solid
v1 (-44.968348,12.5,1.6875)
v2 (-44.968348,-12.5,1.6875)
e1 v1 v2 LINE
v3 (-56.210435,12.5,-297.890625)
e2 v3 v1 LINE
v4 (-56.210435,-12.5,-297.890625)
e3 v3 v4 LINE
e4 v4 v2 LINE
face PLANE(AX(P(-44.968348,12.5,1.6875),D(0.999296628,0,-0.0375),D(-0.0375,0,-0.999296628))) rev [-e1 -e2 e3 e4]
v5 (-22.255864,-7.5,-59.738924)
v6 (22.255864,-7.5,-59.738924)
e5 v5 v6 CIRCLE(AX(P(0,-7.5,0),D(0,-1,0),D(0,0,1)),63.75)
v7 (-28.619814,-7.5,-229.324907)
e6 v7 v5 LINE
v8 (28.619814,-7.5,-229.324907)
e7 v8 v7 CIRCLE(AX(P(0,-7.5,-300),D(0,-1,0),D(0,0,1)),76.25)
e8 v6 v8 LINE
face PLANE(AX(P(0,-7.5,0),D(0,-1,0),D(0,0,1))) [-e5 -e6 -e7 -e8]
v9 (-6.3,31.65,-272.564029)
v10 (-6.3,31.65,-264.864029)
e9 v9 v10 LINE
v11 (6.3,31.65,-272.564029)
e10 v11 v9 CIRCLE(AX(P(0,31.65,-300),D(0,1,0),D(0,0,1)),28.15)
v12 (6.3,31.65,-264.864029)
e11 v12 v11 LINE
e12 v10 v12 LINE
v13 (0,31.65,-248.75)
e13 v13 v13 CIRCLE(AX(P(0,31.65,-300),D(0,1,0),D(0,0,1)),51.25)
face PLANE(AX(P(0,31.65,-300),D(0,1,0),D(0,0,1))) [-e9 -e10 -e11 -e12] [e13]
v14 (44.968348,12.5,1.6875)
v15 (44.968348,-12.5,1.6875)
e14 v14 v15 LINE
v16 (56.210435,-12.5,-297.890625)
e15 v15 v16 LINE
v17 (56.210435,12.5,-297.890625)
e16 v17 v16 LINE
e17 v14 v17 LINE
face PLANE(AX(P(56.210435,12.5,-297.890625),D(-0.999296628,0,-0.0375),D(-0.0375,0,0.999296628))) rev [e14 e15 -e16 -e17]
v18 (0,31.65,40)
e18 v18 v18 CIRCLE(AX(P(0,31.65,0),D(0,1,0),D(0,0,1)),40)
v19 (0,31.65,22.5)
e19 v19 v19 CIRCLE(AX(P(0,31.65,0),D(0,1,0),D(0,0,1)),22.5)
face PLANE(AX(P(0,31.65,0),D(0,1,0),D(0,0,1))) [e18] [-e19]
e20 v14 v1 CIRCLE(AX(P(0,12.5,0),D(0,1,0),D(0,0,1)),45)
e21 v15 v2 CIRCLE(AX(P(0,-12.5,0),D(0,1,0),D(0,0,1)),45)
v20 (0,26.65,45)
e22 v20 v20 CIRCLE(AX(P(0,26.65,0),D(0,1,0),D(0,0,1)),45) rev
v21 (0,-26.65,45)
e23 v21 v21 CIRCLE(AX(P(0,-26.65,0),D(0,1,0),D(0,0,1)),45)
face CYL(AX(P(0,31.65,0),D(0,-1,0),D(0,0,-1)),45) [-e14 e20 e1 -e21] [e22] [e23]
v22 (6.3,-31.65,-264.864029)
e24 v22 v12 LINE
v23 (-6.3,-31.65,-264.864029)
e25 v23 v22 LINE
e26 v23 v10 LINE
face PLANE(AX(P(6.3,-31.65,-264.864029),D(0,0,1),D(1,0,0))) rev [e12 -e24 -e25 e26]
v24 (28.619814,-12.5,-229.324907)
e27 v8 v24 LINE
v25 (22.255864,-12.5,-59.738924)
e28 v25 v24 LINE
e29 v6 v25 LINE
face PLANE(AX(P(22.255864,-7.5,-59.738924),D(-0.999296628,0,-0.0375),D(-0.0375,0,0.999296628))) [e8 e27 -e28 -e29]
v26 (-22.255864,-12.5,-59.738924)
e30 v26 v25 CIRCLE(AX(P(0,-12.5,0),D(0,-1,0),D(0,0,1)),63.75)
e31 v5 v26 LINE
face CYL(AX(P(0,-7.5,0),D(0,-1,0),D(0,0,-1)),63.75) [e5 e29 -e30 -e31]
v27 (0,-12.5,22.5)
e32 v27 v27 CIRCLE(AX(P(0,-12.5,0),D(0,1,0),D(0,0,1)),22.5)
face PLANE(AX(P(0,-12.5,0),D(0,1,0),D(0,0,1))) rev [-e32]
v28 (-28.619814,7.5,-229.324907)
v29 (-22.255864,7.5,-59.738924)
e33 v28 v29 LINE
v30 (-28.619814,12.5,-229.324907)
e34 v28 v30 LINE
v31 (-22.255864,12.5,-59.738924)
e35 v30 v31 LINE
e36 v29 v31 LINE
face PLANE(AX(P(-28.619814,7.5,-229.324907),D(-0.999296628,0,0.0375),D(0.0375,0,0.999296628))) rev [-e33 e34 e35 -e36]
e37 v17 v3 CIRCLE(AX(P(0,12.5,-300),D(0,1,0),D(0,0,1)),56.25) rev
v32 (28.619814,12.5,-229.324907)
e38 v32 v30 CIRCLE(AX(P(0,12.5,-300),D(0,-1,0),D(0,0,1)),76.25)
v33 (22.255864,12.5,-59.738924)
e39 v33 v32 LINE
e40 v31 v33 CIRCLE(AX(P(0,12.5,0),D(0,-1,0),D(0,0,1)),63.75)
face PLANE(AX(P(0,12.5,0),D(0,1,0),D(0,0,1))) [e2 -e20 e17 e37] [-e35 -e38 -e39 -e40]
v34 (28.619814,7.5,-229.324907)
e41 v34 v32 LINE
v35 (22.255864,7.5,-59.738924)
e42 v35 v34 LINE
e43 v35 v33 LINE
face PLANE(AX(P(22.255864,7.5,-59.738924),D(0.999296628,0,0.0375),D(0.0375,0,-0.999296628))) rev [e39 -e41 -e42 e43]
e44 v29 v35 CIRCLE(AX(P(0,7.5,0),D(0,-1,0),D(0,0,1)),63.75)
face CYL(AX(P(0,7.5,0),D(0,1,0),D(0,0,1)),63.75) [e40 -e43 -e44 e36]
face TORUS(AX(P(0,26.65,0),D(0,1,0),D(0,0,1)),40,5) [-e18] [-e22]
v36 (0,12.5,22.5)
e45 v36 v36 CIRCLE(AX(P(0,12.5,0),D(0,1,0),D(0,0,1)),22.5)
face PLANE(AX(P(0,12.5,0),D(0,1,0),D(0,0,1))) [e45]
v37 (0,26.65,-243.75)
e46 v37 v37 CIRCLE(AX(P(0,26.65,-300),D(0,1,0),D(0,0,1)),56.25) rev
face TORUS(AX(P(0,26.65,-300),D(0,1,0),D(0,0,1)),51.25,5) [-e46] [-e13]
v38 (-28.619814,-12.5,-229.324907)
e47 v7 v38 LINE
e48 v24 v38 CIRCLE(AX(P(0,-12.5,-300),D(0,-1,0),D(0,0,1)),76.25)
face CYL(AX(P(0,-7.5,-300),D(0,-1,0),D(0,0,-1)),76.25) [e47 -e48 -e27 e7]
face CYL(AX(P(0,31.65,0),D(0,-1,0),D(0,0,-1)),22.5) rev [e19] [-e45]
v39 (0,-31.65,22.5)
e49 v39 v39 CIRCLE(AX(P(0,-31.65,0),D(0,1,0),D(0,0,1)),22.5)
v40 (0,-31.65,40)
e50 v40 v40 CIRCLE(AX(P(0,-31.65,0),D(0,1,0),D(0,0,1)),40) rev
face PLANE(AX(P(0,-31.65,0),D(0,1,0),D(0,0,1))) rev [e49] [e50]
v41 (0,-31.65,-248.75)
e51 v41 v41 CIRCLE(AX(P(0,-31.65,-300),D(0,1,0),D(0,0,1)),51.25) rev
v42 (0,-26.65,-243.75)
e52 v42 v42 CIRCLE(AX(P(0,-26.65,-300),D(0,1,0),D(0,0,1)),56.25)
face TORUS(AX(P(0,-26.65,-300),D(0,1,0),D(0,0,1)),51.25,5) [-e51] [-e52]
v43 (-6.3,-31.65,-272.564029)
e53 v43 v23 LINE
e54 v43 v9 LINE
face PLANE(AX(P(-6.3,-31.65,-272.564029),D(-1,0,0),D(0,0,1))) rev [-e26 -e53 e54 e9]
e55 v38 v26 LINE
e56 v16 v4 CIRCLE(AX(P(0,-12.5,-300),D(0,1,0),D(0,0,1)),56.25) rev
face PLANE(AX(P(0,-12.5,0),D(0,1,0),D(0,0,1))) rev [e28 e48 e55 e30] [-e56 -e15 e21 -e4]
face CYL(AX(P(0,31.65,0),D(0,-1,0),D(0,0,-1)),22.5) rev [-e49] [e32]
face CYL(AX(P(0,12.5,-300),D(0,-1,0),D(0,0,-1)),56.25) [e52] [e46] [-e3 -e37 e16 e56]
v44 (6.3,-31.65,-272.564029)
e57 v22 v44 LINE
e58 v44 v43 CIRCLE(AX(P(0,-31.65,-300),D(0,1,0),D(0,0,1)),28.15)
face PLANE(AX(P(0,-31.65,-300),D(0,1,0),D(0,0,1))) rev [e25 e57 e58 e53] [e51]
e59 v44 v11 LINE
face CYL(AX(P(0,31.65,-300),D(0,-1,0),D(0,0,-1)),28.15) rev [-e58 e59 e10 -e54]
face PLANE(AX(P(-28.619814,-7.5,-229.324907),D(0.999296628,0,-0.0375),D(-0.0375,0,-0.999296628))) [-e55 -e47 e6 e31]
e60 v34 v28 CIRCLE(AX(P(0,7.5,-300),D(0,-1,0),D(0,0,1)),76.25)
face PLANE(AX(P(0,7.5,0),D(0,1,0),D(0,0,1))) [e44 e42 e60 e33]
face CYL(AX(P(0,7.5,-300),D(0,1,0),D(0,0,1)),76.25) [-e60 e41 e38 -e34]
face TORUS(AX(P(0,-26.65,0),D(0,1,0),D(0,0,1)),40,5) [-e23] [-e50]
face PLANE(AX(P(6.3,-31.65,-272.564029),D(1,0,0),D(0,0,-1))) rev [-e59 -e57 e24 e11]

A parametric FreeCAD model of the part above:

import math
import FreeCAD as App
import Part
import Sketcher

V = App.Vector
Q = App.Units.Quantity


def edges_at(feature, points):
    """Names of the edges that pass closest to the given points."""
    edges = feature.Shape.Edges
    near = lambda p: min(range(len(edges)), key=lambda i: edges[i].distToShape(Part.Vertex(*p))[0])
    return sorted({f"Edge{near(p) + 1}" for p in points})

doc = App.newDocument("Part")
body = doc.addObject("PartDesign::Body", "Body")

# Sketch on XZ plane
sketch1 = body.newObject("Sketcher::SketchObject", "Sketch")
sketch1.AttachmentSupport = (doc.getObject("XZ_Plane"), [""])
sketch1.MapMode = "FlatFace"
sketch1.addGeometry([
    Part.Circle(V(0, 0, 0), V(0, 0, 1), 45),
    Part.Circle(V(0, 0, 0), V(0, 0, 1), 22),
], False)
sketch1.addConstraint([
    Sketcher.Constraint("Coincident", 0, 3, -1, 1),
    Sketcher.Constraint("Coincident", 1, 3, -1, 1),
    Sketcher.Constraint("Diameter", 0, Q("90 mm")),
    Sketcher.Constraint("Diameter", 1, Q("45 mm")),
])
pad1 = body.newObject("PartDesign::Pad", "Pad")
pad1.Profile = sketch1
pad1.Length = 63.3
pad1.Midplane = True
body2 = doc.addObject("PartDesign::Body", "Body001")

# Sketch on XZ plane
sketch2 = body2.newObject("Sketcher::SketchObject", "Sketch001")
sketch2.AttachmentSupport = (doc.getObject("XZ_Plane001"), [""])
sketch2.MapMode = "FlatFace"
sketch2.addGeometry([
    Part.Circle(V(0, -300, 0), V(0, 0, 1), 56),
    Part.Circle(V(0, -300, 0), V(0, 0, 1), 28),
], False)
sketch2.addConstraint([
    Sketcher.Constraint("Coincident", 1, 3, 0, 3),
    Sketcher.Constraint("PointOnObject", 0, 3, -2),
    Sketcher.Constraint("Diameter", 0, Q("112.5 mm")),
    Sketcher.Constraint("Diameter", 1, Q("56.3 mm")),
    Sketcher.Constraint("DistanceY", 0, 3, -1, 1, Q("300 mm")),
])
pad2 = body2.newObject("PartDesign::Pad", "Pad001")
pad2.Profile = sketch2
pad2.Length = 63.3
pad2.Midplane = True
body.AllowCompound = True
doc.recompute()

boolean = body.newObject("PartDesign::Boolean", "Boolean")
boolean.Type = "Fuse"
boolean.addObjects([body2])

# Sketch on XZ plane
sketch3 = body.newObject("Sketcher::SketchObject", "Sketch002")
sketch3.AttachmentSupport = (doc.getObject("XZ_Plane"), [""])
sketch3.MapMode = "FlatFace"
sketch3.addGeometry([
    Part.LineSegment(V(45, 2, 0), V(56, -298, 0)),
    Part.ArcOfCircle(Part.Circle(V(0, -300, 0), V(0, 0, 1), 56), math.radians(178), math.radians(362)),
    Part.LineSegment(V(-56, -298, 0), V(-45, 2, 0)),
    Part.ArcOfCircle(Part.Circle(V(0, 0, 0), V(0, 0, 1), 45), math.radians(2), math.radians(178)),
], False)
sketch3.addConstraint([
    Sketcher.Constraint("Tangent", 0, 2, 1, 2),
    Sketcher.Constraint("Tangent", 1, 1, 2, 1),
    Sketcher.Constraint("Tangent", 2, 2, 3, 2),
    Sketcher.Constraint("Tangent", 3, 1, 0, 1),
    Sketcher.Constraint("Coincident", 3, 3, -1, 1),
    Sketcher.Constraint("PointOnObject", 1, 3, -2),
    Sketcher.Constraint("Radius", 3, Q("45 mm")),
    Sketcher.Constraint("Radius", 1, Q("56.25 mm")),
    Sketcher.Constraint("DistanceY", 1, 3, -1, 1, Q("300 mm")),
])
pad3 = body.newObject("PartDesign::Pad", "Pad002")
pad3.Profile = sketch3
pad3.Length = 25
pad3.Midplane = True

# Sketch on XZ plane
sketch4 = body.newObject("Sketcher::SketchObject", "Sketch003")
sketch4.AttachmentSupport = (doc.getObject("XZ_Plane"), [""])
sketch4.MapMode = "FlatFace"
sketch4.AttachmentOffset = App.Placement(V(0, 0, -12.5), App.Rotation())
sketch4.addGeometry([
    Part.LineSegment(V(22, -60, 0), V(29, -229, 0)),
    Part.ArcOfCircle(Part.Circle(V(0, -300, 0), V(0, 0, 1), 76), math.radians(68), math.radians(112)),
    Part.LineSegment(V(-29, -229, 0), V(-22, -60, 0)),
    Part.ArcOfCircle(Part.Circle(V(0, 0, 0), V(0, 0, 1), 64), math.radians(-110), math.radians(-70)),
], False)
sketch4.addConstraint([
    Sketcher.Constraint("Coincident", 0, 2, 1, 1),
    Sketcher.Constraint("Coincident", 1, 2, 2, 1),
    Sketcher.Constraint("Coincident", 2, 2, 3, 1),
    Sketcher.Constraint("Coincident", 3, 2, 0, 1),
    Sketcher.Constraint("Coincident", 3, 3, -1, 1),
    Sketcher.Constraint("Symmetric", 0, 2, 1, 2, -2),
    Sketcher.Constraint("Horizontal", 2, 2, 3, 2),
    Sketcher.Constraint("Radius", 1, Q("76.25 mm")),
    Sketcher.Constraint("Radius", 3, Q("63.75 mm")),
    Sketcher.Constraint("DistanceY", 1, 3, -1, 1, Q("300 mm")),
    Sketcher.Constraint("Distance", 0, Q("169.70535 mm")),
    Sketcher.Constraint("DistanceX", 1, 2, 0, 2, Q("57.239629 mm")),
])
pocket1 = body.newObject("PartDesign::Pocket", "Pocket")
pocket1.Profile = sketch4
pocket1.Length = 5
pocket1.Reversed = True
doc.recompute()

mirrored = body.newObject("PartDesign::Mirrored", "Mirrored")
mirrored.Originals = [pocket1]
mirrored.MirrorPlane = (doc.getObject("XZ_Plane"), [""])
body.Tip = mirrored

# Sketch on XZ plane
sketch5 = body.newObject("Sketcher::SketchObject", "Sketch004")
sketch5.AttachmentSupport = (doc.getObject("XZ_Plane"), [""])
sketch5.MapMode = "FlatFace"
sketch5.AttachmentOffset = App.Placement(V(0, 0, -31.65), App.Rotation())
sketch5.addGeometry([
    Part.LineSegment(V(6, -265, 0), V(6, -273, 0)),
    Part.ArcOfCircle(Part.Circle(V(0, -300, 0), V(0, 0, 1), 28), math.radians(103), math.radians(437)),
    Part.LineSegment(V(-6, -273, 0), V(-6, -265, 0)),
    Part.LineSegment(V(-6, -265, 0), V(6, -265, 0)),
], False)
sketch5.addConstraint([
    Sketcher.Constraint("Coincident", 0, 2, 1, 2),
    Sketcher.Constraint("Coincident", 1, 1, 2, 1),
    Sketcher.Constraint("Coincident", 2, 2, 3, 1),
    Sketcher.Constraint("Coincident", 3, 2, 0, 1),
    Sketcher.Constraint("Vertical", 0),
    Sketcher.Constraint("Vertical", 2),
    Sketcher.Constraint("Horizontal", 3),
    Sketcher.Constraint("Symmetric", 0, 2, 1, 1, -2),
    Sketcher.Constraint("Radius", 1, Q("28.15 mm")),
    Sketcher.Constraint("DistanceX", 3, 1, 3, 2, Q("12.6 mm")),
    Sketcher.Constraint("DistanceY", 0, 2, 0, 1, Q("7.7 mm")),
    Sketcher.Constraint("DistanceY", 1, 3, -1, 1, Q("300 mm")),
])
pocket2 = body.newObject("PartDesign::Pocket", "Pocket001")
pocket2.Profile = sketch5
pocket2.Type = "ThroughAll"
pocket2.Reversed = True
doc.recompute()

fillet = body.newObject("PartDesign::Fillet", "Fillet")
fillet.Base = (pocket2, edges_at(pocket2, [
    (0, -31.65, -45),
    (0, -31.65, -356.25),
    (0, 31.65, -356.25),
    (0, 31.65, -45),
]))
fillet.Radius = 5

doc.recompute()
